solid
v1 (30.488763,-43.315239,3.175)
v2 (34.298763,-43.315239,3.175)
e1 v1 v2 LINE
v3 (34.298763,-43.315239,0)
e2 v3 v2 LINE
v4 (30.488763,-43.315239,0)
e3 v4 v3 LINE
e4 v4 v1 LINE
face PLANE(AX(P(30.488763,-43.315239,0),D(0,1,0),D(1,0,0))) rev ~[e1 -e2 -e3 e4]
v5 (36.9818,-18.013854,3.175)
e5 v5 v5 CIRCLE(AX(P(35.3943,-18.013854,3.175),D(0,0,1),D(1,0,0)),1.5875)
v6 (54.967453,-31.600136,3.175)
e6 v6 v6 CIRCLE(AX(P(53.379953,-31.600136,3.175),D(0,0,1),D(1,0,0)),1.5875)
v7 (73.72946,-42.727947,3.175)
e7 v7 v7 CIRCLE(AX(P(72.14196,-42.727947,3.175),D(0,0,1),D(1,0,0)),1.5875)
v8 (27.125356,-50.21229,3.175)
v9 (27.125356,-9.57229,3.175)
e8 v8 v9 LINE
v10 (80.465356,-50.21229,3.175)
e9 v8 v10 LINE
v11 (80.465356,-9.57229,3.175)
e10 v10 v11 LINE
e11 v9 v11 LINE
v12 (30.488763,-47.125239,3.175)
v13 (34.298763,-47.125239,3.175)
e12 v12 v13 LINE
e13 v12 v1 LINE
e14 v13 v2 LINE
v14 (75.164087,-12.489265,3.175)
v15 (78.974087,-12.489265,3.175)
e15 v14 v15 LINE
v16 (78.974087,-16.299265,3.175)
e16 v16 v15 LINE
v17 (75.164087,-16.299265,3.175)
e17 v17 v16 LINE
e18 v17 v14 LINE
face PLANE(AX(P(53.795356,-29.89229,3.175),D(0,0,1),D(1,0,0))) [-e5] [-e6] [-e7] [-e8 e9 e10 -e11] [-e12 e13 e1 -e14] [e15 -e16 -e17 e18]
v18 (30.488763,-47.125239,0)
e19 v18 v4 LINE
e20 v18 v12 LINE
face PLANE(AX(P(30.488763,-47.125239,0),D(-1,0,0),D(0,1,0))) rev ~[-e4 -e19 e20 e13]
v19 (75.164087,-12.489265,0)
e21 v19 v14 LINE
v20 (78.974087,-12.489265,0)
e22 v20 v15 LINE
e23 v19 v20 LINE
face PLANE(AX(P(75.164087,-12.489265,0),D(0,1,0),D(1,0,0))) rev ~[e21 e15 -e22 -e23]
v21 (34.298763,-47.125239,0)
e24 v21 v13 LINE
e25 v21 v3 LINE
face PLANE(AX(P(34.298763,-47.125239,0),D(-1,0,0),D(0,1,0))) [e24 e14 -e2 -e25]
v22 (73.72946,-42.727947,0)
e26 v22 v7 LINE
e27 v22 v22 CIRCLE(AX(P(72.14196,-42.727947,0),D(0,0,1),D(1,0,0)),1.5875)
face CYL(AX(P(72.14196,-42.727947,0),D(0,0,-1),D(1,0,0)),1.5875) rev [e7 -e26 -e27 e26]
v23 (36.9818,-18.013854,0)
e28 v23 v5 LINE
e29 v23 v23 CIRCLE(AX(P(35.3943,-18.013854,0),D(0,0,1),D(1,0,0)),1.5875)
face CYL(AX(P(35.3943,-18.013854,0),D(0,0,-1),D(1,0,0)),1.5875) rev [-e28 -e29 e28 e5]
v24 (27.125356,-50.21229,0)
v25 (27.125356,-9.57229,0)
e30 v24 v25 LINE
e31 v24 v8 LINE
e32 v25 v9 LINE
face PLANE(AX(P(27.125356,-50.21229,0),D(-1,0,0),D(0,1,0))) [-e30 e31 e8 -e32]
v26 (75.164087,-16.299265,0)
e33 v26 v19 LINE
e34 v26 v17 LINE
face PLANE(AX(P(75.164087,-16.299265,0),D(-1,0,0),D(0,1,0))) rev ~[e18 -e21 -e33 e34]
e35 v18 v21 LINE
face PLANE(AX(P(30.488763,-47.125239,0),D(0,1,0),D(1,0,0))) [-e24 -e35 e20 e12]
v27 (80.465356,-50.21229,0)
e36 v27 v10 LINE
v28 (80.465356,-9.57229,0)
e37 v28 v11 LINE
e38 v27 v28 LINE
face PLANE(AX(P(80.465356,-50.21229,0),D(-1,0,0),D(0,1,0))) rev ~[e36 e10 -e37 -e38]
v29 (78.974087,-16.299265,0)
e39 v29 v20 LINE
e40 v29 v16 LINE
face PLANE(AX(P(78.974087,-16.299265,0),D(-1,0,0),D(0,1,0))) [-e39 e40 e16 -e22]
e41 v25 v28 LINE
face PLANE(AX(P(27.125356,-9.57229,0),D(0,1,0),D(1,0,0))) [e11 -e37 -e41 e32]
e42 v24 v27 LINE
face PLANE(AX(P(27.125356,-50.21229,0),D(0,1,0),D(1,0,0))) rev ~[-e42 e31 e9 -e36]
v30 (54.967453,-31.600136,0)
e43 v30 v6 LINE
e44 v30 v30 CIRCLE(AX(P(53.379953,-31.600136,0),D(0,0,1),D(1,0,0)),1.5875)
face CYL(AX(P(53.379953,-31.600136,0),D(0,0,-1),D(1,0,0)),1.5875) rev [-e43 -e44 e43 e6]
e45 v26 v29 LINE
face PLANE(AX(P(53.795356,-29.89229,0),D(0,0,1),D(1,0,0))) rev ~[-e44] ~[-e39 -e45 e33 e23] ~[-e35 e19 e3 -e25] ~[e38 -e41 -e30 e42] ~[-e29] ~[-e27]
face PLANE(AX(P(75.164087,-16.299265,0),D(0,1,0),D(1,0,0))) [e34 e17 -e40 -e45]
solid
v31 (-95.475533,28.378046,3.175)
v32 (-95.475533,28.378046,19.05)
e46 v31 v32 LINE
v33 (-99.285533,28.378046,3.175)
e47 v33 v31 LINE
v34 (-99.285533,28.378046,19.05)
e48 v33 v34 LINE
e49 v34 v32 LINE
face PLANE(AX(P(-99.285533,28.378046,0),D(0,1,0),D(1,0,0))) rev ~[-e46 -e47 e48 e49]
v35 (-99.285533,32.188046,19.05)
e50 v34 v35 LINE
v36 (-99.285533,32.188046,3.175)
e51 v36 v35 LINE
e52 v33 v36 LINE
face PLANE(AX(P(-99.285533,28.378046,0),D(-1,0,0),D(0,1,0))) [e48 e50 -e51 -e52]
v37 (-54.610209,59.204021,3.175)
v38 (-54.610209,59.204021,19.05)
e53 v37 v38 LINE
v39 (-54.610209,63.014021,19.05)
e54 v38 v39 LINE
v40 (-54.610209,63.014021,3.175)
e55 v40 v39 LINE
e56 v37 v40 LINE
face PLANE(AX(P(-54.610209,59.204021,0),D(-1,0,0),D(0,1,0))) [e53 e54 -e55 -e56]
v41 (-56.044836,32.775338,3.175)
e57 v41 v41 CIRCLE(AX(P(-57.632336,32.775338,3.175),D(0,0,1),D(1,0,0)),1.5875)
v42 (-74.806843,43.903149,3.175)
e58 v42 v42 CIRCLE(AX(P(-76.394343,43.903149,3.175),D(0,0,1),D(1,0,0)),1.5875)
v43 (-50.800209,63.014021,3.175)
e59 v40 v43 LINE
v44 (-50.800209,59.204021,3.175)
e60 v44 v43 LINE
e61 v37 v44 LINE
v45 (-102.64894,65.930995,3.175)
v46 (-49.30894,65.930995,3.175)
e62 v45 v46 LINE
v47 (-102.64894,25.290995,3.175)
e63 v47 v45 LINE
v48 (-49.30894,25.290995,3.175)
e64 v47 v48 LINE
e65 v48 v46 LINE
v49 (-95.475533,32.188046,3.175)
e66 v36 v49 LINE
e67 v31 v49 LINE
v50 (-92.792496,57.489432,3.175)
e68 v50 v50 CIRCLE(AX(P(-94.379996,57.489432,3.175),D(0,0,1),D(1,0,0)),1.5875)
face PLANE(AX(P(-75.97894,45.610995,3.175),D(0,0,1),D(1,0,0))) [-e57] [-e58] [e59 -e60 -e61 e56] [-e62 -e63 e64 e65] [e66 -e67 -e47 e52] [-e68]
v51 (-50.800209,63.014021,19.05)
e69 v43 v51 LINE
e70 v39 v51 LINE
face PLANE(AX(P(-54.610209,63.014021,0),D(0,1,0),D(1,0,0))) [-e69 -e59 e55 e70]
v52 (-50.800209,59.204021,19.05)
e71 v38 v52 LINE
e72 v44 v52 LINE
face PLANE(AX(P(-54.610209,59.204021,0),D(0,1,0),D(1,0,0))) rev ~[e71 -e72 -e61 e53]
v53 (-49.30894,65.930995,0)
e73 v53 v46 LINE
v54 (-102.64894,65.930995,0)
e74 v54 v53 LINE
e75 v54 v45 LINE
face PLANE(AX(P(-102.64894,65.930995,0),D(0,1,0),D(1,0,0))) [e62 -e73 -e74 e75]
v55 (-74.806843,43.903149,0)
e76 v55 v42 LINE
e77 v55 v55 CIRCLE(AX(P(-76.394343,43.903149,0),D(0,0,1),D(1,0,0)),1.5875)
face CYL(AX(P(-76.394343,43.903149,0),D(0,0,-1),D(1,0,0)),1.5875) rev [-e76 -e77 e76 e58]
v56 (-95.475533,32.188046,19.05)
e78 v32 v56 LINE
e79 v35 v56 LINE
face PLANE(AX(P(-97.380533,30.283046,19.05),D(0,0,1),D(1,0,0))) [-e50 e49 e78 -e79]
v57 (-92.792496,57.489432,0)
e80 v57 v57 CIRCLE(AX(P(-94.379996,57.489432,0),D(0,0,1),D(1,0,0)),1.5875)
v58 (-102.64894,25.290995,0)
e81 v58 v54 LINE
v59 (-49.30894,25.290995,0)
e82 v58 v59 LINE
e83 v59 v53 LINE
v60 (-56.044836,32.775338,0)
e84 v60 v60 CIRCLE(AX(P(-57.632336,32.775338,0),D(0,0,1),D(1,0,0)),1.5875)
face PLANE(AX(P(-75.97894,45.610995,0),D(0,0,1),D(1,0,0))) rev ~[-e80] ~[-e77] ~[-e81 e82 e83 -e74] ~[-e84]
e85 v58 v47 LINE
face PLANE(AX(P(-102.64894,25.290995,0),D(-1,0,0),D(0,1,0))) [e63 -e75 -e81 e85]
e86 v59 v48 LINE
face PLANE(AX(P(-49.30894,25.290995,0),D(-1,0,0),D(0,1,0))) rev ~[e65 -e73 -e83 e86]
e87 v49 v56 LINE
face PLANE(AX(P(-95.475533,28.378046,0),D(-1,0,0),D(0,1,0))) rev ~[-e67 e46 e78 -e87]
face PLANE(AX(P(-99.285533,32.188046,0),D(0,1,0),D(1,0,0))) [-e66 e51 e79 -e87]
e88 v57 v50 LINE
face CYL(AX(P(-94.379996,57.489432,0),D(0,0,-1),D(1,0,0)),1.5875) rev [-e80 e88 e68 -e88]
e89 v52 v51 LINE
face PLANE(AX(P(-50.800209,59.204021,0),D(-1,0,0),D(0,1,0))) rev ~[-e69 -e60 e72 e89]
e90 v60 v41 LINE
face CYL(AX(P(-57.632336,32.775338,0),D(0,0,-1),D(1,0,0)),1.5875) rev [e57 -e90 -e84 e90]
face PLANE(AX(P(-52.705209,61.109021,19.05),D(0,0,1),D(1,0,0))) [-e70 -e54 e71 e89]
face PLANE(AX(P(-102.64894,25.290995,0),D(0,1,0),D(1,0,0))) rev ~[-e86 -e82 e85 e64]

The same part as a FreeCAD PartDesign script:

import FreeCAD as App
import Part
import Sketcher

V = App.Vector
Q = App.Units.Quantity


def add_polygon(sketch, points):
    """Adds a closed chain of lines whose ends are joined by coincident constraints."""
    first, n = sketch.GeometryCount, len(points)
    for a, b in zip(points, points[1:] + points[:1]):
        sketch.addGeometry(Part.LineSegment(App.Vector(*a, 0), App.Vector(*b, 0)), False)
    for i in range(n):
        sketch.addConstraint(Sketcher.Constraint("Coincident", first + i, 2, first + (i + 1) % n, 1))

doc = App.newDocument("Part")
body = doc.addObject("PartDesign::Body", "Body")

# Sketch on XY plane
sketch1 = doc.addObject("Sketcher::SketchObject", "Sketch")
body.addObject(sketch1)
sketch1.AttachmentSupport = (doc.XY_Plane, [""])
sketch1.MapMode = "FlatFace"
add_polygon(sketch1, [(27.125356, -9.57229), (27.125356, -50.21229), (80.465356, -50.21229), (80.465356, -9.57229)])  # lines 0-3
add_polygon(sketch1, [(34.298763, -47.125239), (30.488763, -47.125239), (30.488763, -43.315239), (34.298763, -43.315239)])  # lines 4-7
sketch1.addGeometry(Part.Circle(V(53.379953, -31.600136, 0), V(0, 0, 1), 1.5875), False)  # 8
sketch1.addGeometry(Part.Circle(V(72.14196, -42.727947, 0), V(0, 0, 1), 1.5875), False)  # 9
sketch1.addGeometry(Part.Circle(V(35.3943, -18.013854, 0), V(0, 0, 1), 1.5875), False)  # 10
add_polygon(sketch1, [(78.974087, -16.299265), (75.164087, -16.299265), (75.164087, -12.489265), (78.974087, -12.489265)])  # lines 11-14
sketch1.addConstraint([
    Sketcher.Constraint("Vertical", 0),
    Sketcher.Constraint("Horizontal", 1),
    Sketcher.Constraint("Vertical", 2),
    Sketcher.Constraint("Horizontal", 3),
    Sketcher.Constraint("Horizontal", 4),
    Sketcher.Constraint("Vertical", 5),
    Sketcher.Constraint("Horizontal", 6),
    Sketcher.Constraint("Vertical", 7),
    Sketcher.Constraint("Horizontal", 11),
    Sketcher.Constraint("Vertical", 12),
    Sketcher.Constraint("Horizontal", 13),
    Sketcher.Constraint("Vertical", 14),
    Sketcher.Constraint("Equal", 8, 9),
    Sketcher.Constraint("Equal", 9, 10),
    Sketcher.Constraint("Equal", 6, 11),
    Sketcher.Constraint("Equal", 13, 5),
    Sketcher.Constraint("Equal", 7, 12),
    Sketcher.Constraint("Diameter", 8, Q("0.125 in")),
    Sketcher.Constraint("DistanceX", 1, 1, 1, 2, Q("2.1 in")),
    Sketcher.Constraint("DistanceY", 0, 2, 0, 1, Q("1.6 in")),
    Sketcher.Constraint("DistanceX", 4, 2, 4, 1, Q("0.15 in")),
    Sketcher.Constraint("DistanceY", 8, 3, -1, 1, Q("1.2440998 in")),
    Sketcher.Constraint("DistanceX", -1, 1, 10, 3, 35.3943),
    Sketcher.Constraint("DistanceX", -1, 1, 9, 3, 72.14196),
    Sketcher.Constraint("DistanceY", 0, 2, -1, 1, 50.21229),
    Sketcher.Constraint("DistanceY", 4, 2, -1, 1, 47.125239),
    Sketcher.Constraint("DistanceY", 9, 3, 8, 3, 11.127811),
    Sketcher.Constraint("DistanceX", 4, 2, 8, 3, 22.89119),
    Sketcher.Constraint("DistanceX", 11, 2, 2, 2, 5.301269),
    Sketcher.Constraint("DistanceY", 8, 3, 11, 2, 15.300871),
    Sketcher.Constraint("DistanceY", 10, 3, 11, 2, 1.714589),
    Sketcher.Constraint("DistanceX", -1, 1, 8, 3, 53.379953),
    Sketcher.Constraint("DistanceX", -1, 1, 0, 2, 27.125356),
])
pad1 = doc.addObject("PartDesign::Pad", "Pad")
body.addObject(pad1)
pad1.Profile = sketch1
pad1.Length = Q("0.125 in")
body2 = doc.addObject("PartDesign::Body", "Body001")

# Sketch on XY plane
sketch2 = doc.addObject("Sketcher::SketchObject", "Sketch001")
body2.addObject(sketch2)
sketch2.AttachmentSupport = (doc.getObject("XY_Plane001"), [""])
sketch2.MapMode = "FlatFace"
add_polygon(sketch2, [(-102.64894, 65.930995), (-102.64894, 25.290995), (-49.30894, 25.290995), (-49.30894, 65.930995)])  # lines 0-3
add_polygon(sketch2, [(-95.475533, 28.378046), (-99.285533, 28.378046), (-99.285533, 32.188046), (-95.475533, 32.188046)])  # lines 4-7
sketch2.addGeometry(Part.Circle(V(-76.394343, 43.903149, 0), V(0, 0, 1), 1.5875), False)  # 8
sketch2.addGeometry(Part.Circle(V(-57.632336, 32.775338, 0), V(0, 0, 1), 1.5875), False)  # 9
sketch2.addGeometry(Part.Circle(V(-94.379996, 57.489432, 0), V(0, 0, 1), 1.5875), False)  # 10
add_polygon(sketch2, [(-50.800209, 59.204021), (-54.610209, 59.204021), (-54.610209, 63.014021), (-50.800209, 63.014021)])  # lines 11-14
sketch2.addConstraint([
    Sketcher.Constraint("Vertical", 0),
    Sketcher.Constraint("Horizontal", 1),
    Sketcher.Constraint("Vertical", 2),
    Sketcher.Constraint("Horizontal", 3),
    Sketcher.Constraint("Horizontal", 4),
    Sketcher.Constraint("Vertical", 5),
    Sketcher.Constraint("Horizontal", 6),
    Sketcher.Constraint("Vertical", 7),
    Sketcher.Constraint("Horizontal", 11),
    Sketcher.Constraint("Vertical", 12),
    Sketcher.Constraint("Horizontal", 13),
    Sketcher.Constraint("Vertical", 14),
    Sketcher.Constraint("Equal", 8, 9),
    Sketcher.Constraint("Equal", 9, 10),
    Sketcher.Constraint("Equal", 6, 11),
    Sketcher.Constraint("Equal", 13, 5),
    Sketcher.Constraint("Equal", 7, 12),
    Sketcher.Constraint("Diameter", 8, Q("0.125 in")),
    Sketcher.Constraint("DistanceX", 1, 1, 1, 2, Q("2.1 in")),
    Sketcher.Constraint("DistanceY", 0, 2, 0, 1, Q("1.6 in")),
    Sketcher.Constraint("DistanceX", 4, 2, 4, 1, Q("0.15 in")),
    Sketcher.Constraint("DistanceY", -1, 1, 8, 3, 43.903149),
    Sketcher.Constraint("DistanceX", 0, 2, -1, 1, 102.64894),
    Sketcher.Constraint("DistanceX", 11, 2, -1, 1, 54.610209),
    Sketcher.Constraint("DistanceY", -1, 1, 11, 2, 59.204021),
    Sketcher.Constraint("DistanceY", 9, 3, 8, 3, 11.127811),
    Sketcher.Constraint("DistanceX", 10, 3, 9, 3, 36.74766),
    Sketcher.Constraint("DistanceY", 0, 2, 4, 2, 3.087051),
    Sketcher.Constraint("DistanceX", 4, 2, 8, 3, 22.89119),
    Sketcher.Constraint("DistanceY", 4, 2, 9, 3, 4.397292),
    Sketcher.Constraint("DistanceY", 10, 3, 11, 2, 1.714589),
    Sketcher.Constraint("DistanceX", 8, 3, -1, 1, 76.394343),
    Sketcher.Constraint("DistanceX", 9, 3, -1, 1, 57.632336),
])
pad2 = doc.addObject("PartDesign::Pad", "Pad001")
body2.addObject(pad2)
pad2.Profile = sketch2
pad2.Length = Q("0.125 in")

# Sketch on XY plane
sketch3 = doc.addObject("Sketcher::SketchObject", "Sketch002")
body2.addObject(sketch3)
sketch3.AttachmentSupport = (doc.getObject("XY_Plane001"), [""])
sketch3.MapMode = "FlatFace"
add_polygon(sketch3, [(-99.285533, 32.188046), (-99.285533, 28.378046), (-95.475533, 28.378046), (-95.475533, 32.188046)])  # lines 0-3
add_polygon(sketch3, [(-54.610209, 63.014021), (-54.610209, 59.204021), (-50.800209, 59.204021), (-50.800209, 63.014021)])  # lines 4-7
sketch3.addConstraint([
    Sketcher.Constraint("Vertical", 0),
    Sketcher.Constraint("Horizontal", 1),
    Sketcher.Constraint("Vertical", 2),
    Sketcher.Constraint("Horizontal", 3),
    Sketcher.Constraint("Vertical", 4),
    Sketcher.Constraint("Horizontal", 5),
    Sketcher.Constraint("Vertical", 6),
    Sketcher.Constraint("Horizontal", 7),
    Sketcher.Constraint("Equal", 3, 5),
    Sketcher.Constraint("Equal", 7, 0),
    Sketcher.Constraint("Equal", 2, 4),
    Sketcher.Constraint("DistanceX", 1, 1, 1, 2, Q("0.15 in")),
    Sketcher.Constraint("DistanceX", 4, 2, -1, 1, 54.610209),
    Sketcher.Constraint("DistanceY", -1, 1, 4, 2, 59.204021),
    Sketcher.Constraint("DistanceX", 0, 2, -1, 1, 99.285533),
    Sketcher.Constraint("DistanceY", -1, 1, 0, 2, 28.378046),
])
pad3 = doc.addObject("PartDesign::Pad", "Pad002")
body2.addObject(pad3)
pad3.Profile = sketch3
pad3.Length = Q("0.75 in")

doc.recompute()
